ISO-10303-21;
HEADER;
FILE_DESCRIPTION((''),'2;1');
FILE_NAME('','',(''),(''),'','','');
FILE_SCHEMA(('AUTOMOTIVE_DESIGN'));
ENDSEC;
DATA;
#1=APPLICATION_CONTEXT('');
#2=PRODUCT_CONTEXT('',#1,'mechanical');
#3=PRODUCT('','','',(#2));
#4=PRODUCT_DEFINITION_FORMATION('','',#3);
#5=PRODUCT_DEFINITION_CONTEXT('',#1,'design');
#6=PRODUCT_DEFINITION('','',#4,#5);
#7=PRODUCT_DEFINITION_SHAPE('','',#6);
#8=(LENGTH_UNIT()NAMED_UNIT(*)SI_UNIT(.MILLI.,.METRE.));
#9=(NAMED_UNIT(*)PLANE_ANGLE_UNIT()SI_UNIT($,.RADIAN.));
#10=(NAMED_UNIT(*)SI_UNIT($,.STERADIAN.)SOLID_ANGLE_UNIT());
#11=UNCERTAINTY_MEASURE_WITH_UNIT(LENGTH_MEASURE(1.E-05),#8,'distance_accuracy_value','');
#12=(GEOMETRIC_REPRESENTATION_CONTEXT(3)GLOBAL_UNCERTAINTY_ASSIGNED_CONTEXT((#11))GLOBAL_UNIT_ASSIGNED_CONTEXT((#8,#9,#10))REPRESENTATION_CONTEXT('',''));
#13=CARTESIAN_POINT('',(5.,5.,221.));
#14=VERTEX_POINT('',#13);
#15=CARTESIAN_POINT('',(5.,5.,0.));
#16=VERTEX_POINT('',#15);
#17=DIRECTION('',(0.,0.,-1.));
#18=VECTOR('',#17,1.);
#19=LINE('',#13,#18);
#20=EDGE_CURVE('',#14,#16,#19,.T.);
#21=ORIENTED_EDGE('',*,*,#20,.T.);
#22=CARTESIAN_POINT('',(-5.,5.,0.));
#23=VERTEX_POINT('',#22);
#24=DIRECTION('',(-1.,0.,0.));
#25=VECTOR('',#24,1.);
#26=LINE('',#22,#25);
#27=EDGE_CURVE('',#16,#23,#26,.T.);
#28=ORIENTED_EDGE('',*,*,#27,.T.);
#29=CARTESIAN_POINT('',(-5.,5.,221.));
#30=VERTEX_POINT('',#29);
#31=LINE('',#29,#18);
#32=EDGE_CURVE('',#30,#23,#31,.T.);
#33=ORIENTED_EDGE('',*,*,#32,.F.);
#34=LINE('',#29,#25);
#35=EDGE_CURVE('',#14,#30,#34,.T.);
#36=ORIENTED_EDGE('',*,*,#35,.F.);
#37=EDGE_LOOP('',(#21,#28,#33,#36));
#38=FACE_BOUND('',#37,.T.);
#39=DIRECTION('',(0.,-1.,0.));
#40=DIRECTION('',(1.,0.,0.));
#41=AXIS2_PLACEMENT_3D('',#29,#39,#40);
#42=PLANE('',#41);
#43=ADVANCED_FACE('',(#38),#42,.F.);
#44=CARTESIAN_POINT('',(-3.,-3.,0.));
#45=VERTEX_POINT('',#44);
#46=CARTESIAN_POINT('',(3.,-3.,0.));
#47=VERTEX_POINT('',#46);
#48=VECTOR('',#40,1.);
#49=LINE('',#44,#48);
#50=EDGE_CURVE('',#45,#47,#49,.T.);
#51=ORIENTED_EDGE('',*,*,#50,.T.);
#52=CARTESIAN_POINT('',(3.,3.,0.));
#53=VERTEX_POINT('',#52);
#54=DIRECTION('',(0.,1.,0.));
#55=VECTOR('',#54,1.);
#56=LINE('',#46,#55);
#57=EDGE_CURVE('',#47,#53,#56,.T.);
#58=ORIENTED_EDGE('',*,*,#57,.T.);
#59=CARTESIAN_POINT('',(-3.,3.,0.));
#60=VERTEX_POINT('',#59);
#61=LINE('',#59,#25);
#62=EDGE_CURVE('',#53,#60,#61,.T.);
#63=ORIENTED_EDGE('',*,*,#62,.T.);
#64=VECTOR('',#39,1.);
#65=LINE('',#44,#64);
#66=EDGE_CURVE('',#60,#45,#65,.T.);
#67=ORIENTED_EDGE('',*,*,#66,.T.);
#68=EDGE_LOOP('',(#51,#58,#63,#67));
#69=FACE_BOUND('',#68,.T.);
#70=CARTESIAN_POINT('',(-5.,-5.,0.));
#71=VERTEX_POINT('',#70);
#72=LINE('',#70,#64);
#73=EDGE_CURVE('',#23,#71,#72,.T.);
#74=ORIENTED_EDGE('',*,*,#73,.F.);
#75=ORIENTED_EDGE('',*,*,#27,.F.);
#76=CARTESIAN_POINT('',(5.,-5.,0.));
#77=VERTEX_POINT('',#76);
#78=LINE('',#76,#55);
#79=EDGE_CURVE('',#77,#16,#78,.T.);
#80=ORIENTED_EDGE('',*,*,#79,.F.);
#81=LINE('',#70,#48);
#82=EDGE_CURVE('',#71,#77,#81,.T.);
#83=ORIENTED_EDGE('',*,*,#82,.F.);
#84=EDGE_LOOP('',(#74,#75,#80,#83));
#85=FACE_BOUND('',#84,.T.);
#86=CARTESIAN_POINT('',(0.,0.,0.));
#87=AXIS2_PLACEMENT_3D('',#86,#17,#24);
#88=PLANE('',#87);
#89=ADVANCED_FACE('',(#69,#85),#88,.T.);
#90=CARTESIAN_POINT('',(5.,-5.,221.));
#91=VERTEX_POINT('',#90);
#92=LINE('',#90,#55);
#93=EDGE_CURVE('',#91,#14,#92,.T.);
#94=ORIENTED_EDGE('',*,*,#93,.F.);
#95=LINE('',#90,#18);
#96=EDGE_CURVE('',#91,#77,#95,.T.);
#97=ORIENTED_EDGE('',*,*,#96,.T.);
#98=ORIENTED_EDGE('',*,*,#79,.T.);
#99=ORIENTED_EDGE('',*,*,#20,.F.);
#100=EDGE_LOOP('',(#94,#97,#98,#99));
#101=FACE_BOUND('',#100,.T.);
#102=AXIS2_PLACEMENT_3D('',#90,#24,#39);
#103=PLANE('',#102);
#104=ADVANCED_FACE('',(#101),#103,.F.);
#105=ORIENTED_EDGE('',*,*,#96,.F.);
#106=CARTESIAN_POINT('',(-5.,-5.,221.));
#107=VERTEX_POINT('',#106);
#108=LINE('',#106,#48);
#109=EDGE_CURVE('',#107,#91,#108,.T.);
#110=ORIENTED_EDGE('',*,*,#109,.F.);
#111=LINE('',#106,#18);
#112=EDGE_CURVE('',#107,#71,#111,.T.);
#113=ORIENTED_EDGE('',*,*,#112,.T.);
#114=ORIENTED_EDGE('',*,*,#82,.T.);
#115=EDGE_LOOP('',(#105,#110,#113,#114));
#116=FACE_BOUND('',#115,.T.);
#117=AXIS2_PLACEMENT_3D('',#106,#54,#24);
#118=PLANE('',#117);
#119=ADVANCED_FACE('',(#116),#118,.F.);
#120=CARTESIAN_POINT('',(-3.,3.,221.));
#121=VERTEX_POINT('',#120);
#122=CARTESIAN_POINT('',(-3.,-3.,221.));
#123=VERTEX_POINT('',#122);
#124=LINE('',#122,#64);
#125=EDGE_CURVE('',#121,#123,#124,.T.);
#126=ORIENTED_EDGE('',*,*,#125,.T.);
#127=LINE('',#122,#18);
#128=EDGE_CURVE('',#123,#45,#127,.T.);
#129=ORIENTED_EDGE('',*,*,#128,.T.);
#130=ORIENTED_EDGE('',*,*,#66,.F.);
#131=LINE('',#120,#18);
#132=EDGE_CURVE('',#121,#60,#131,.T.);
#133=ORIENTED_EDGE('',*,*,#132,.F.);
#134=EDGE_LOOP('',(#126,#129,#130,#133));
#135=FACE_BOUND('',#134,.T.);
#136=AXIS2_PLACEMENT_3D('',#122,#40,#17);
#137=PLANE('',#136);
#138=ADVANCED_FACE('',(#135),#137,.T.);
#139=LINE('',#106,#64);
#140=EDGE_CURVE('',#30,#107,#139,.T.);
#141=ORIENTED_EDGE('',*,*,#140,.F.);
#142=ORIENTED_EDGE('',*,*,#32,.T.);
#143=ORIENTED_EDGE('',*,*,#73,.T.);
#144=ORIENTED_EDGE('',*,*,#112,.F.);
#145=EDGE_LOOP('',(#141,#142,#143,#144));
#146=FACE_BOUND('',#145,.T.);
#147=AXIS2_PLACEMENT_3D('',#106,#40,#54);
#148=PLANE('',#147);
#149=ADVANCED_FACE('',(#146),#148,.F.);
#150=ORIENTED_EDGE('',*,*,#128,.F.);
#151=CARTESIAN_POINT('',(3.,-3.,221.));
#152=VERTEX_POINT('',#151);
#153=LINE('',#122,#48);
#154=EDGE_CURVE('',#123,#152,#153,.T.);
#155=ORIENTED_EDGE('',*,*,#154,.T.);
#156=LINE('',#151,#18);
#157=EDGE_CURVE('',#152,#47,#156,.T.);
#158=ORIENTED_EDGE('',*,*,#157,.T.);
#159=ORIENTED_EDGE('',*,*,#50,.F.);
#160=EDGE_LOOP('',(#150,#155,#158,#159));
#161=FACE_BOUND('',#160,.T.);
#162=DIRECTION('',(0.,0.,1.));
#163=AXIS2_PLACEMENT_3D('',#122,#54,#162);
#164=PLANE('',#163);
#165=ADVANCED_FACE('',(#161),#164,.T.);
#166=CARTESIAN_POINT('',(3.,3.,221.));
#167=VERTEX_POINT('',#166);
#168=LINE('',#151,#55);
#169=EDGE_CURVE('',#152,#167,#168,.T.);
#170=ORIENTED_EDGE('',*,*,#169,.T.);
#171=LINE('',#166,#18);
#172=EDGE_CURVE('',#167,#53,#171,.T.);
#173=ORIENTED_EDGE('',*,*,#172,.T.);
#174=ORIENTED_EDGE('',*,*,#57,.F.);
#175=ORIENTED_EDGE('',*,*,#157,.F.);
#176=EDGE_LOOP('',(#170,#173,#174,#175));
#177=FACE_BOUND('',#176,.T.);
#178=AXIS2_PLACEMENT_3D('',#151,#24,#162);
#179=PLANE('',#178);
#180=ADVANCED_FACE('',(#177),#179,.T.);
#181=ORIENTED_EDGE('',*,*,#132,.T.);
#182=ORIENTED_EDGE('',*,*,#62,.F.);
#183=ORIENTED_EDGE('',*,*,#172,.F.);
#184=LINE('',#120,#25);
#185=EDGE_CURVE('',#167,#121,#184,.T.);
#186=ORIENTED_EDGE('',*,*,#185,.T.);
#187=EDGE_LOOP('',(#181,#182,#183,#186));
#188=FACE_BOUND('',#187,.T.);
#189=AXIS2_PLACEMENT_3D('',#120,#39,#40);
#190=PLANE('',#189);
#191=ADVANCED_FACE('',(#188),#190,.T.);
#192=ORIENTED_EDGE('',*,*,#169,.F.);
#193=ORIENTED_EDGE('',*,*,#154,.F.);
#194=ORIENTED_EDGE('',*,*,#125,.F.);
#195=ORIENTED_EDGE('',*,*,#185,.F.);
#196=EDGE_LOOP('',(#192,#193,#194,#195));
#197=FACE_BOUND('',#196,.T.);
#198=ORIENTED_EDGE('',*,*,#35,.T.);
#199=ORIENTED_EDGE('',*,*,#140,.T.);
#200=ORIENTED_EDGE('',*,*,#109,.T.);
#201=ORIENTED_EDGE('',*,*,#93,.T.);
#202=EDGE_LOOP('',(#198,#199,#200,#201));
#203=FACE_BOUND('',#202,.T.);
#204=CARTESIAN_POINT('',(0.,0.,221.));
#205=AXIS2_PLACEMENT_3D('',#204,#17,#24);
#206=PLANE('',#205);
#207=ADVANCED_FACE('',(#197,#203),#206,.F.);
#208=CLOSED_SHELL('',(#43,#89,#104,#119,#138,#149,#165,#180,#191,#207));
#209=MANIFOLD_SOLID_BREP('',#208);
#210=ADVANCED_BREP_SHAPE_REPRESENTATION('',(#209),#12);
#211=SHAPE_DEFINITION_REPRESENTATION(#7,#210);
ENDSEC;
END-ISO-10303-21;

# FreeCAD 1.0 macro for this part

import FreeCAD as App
import Part
import Sketcher
from FreeCAD import Vector


def add_polygon(sketch, points):
    """Adds a closed chain of lines whose ends are joined by coincident constraints."""
    first, n = sketch.GeometryCount, len(points)
    for a, b in zip(points, points[1:] + points[:1]):
        sketch.addGeometry(Part.LineSegment(App.Vector(*a, 0), App.Vector(*b, 0)), False)
    for i in range(n):
        sketch.addConstraint(Sketcher.Constraint("Coincident", first + i, 2, first + (i + 1) % n, 1))

doc = App.newDocument("Part")
body = doc.addObject("PartDesign::Body", "Body")

sketch1 = doc.addObject("Sketcher::SketchObject", "Sketch")
body.addObject(sketch1)
sketch1.AttachmentSupport = (doc.XY_Plane, [""])
sketch1.MapMode = "FlatFace"
add_polygon(sketch1, [(-5, 5), (-5, -5), (5, -5), (5, 5)])
add_polygon(sketch1, [(3, -3), (-3, -3), (-3, 3), (3, 3)])
sketch1.addConstraint(Sketcher.Constraint("Vertical", 0))
sketch1.addConstraint(Sketcher.Constraint("Horizontal", 1))
sketch1.addConstraint(Sketcher.Constraint("Vertical", 2))
sketch1.addConstraint(Sketcher.Constraint("Horizontal", 3))
sketch1.addConstraint(Sketcher.Constraint("Horizontal", 4))
sketch1.addConstraint(Sketcher.Constraint("Vertical", 5))
sketch1.addConstraint(Sketcher.Constraint("Horizontal", 6))
sketch1.addConstraint(Sketcher.Constraint("Vertical", 7))
sketch1.addConstraint(Sketcher.Constraint("Symmetric", 0, 2, 2, 2, -1, 1))
sketch1.addConstraint(Sketcher.Constraint("Symmetric", 4, 2, 6, 2, -1, 1))
sketch1.addConstraint(Sketcher.Constraint("Equal", 3, 0))
sketch1.addConstraint(Sketcher.Constraint("Equal", 6, 5))
sketch1.addConstraint(Sketcher.Constraint("DistanceX", 1, 1, 1, 2, 10.0))
sketch1.addConstraint(Sketcher.Constraint("DistanceX", 4, 2, 4, 1, 6.0))
pad1 = doc.addObject("PartDesign::Pad", "Pad")
body.addObject(pad1)
pad1.Profile = sketch1
pad1.Length = 221

doc.recompute()
